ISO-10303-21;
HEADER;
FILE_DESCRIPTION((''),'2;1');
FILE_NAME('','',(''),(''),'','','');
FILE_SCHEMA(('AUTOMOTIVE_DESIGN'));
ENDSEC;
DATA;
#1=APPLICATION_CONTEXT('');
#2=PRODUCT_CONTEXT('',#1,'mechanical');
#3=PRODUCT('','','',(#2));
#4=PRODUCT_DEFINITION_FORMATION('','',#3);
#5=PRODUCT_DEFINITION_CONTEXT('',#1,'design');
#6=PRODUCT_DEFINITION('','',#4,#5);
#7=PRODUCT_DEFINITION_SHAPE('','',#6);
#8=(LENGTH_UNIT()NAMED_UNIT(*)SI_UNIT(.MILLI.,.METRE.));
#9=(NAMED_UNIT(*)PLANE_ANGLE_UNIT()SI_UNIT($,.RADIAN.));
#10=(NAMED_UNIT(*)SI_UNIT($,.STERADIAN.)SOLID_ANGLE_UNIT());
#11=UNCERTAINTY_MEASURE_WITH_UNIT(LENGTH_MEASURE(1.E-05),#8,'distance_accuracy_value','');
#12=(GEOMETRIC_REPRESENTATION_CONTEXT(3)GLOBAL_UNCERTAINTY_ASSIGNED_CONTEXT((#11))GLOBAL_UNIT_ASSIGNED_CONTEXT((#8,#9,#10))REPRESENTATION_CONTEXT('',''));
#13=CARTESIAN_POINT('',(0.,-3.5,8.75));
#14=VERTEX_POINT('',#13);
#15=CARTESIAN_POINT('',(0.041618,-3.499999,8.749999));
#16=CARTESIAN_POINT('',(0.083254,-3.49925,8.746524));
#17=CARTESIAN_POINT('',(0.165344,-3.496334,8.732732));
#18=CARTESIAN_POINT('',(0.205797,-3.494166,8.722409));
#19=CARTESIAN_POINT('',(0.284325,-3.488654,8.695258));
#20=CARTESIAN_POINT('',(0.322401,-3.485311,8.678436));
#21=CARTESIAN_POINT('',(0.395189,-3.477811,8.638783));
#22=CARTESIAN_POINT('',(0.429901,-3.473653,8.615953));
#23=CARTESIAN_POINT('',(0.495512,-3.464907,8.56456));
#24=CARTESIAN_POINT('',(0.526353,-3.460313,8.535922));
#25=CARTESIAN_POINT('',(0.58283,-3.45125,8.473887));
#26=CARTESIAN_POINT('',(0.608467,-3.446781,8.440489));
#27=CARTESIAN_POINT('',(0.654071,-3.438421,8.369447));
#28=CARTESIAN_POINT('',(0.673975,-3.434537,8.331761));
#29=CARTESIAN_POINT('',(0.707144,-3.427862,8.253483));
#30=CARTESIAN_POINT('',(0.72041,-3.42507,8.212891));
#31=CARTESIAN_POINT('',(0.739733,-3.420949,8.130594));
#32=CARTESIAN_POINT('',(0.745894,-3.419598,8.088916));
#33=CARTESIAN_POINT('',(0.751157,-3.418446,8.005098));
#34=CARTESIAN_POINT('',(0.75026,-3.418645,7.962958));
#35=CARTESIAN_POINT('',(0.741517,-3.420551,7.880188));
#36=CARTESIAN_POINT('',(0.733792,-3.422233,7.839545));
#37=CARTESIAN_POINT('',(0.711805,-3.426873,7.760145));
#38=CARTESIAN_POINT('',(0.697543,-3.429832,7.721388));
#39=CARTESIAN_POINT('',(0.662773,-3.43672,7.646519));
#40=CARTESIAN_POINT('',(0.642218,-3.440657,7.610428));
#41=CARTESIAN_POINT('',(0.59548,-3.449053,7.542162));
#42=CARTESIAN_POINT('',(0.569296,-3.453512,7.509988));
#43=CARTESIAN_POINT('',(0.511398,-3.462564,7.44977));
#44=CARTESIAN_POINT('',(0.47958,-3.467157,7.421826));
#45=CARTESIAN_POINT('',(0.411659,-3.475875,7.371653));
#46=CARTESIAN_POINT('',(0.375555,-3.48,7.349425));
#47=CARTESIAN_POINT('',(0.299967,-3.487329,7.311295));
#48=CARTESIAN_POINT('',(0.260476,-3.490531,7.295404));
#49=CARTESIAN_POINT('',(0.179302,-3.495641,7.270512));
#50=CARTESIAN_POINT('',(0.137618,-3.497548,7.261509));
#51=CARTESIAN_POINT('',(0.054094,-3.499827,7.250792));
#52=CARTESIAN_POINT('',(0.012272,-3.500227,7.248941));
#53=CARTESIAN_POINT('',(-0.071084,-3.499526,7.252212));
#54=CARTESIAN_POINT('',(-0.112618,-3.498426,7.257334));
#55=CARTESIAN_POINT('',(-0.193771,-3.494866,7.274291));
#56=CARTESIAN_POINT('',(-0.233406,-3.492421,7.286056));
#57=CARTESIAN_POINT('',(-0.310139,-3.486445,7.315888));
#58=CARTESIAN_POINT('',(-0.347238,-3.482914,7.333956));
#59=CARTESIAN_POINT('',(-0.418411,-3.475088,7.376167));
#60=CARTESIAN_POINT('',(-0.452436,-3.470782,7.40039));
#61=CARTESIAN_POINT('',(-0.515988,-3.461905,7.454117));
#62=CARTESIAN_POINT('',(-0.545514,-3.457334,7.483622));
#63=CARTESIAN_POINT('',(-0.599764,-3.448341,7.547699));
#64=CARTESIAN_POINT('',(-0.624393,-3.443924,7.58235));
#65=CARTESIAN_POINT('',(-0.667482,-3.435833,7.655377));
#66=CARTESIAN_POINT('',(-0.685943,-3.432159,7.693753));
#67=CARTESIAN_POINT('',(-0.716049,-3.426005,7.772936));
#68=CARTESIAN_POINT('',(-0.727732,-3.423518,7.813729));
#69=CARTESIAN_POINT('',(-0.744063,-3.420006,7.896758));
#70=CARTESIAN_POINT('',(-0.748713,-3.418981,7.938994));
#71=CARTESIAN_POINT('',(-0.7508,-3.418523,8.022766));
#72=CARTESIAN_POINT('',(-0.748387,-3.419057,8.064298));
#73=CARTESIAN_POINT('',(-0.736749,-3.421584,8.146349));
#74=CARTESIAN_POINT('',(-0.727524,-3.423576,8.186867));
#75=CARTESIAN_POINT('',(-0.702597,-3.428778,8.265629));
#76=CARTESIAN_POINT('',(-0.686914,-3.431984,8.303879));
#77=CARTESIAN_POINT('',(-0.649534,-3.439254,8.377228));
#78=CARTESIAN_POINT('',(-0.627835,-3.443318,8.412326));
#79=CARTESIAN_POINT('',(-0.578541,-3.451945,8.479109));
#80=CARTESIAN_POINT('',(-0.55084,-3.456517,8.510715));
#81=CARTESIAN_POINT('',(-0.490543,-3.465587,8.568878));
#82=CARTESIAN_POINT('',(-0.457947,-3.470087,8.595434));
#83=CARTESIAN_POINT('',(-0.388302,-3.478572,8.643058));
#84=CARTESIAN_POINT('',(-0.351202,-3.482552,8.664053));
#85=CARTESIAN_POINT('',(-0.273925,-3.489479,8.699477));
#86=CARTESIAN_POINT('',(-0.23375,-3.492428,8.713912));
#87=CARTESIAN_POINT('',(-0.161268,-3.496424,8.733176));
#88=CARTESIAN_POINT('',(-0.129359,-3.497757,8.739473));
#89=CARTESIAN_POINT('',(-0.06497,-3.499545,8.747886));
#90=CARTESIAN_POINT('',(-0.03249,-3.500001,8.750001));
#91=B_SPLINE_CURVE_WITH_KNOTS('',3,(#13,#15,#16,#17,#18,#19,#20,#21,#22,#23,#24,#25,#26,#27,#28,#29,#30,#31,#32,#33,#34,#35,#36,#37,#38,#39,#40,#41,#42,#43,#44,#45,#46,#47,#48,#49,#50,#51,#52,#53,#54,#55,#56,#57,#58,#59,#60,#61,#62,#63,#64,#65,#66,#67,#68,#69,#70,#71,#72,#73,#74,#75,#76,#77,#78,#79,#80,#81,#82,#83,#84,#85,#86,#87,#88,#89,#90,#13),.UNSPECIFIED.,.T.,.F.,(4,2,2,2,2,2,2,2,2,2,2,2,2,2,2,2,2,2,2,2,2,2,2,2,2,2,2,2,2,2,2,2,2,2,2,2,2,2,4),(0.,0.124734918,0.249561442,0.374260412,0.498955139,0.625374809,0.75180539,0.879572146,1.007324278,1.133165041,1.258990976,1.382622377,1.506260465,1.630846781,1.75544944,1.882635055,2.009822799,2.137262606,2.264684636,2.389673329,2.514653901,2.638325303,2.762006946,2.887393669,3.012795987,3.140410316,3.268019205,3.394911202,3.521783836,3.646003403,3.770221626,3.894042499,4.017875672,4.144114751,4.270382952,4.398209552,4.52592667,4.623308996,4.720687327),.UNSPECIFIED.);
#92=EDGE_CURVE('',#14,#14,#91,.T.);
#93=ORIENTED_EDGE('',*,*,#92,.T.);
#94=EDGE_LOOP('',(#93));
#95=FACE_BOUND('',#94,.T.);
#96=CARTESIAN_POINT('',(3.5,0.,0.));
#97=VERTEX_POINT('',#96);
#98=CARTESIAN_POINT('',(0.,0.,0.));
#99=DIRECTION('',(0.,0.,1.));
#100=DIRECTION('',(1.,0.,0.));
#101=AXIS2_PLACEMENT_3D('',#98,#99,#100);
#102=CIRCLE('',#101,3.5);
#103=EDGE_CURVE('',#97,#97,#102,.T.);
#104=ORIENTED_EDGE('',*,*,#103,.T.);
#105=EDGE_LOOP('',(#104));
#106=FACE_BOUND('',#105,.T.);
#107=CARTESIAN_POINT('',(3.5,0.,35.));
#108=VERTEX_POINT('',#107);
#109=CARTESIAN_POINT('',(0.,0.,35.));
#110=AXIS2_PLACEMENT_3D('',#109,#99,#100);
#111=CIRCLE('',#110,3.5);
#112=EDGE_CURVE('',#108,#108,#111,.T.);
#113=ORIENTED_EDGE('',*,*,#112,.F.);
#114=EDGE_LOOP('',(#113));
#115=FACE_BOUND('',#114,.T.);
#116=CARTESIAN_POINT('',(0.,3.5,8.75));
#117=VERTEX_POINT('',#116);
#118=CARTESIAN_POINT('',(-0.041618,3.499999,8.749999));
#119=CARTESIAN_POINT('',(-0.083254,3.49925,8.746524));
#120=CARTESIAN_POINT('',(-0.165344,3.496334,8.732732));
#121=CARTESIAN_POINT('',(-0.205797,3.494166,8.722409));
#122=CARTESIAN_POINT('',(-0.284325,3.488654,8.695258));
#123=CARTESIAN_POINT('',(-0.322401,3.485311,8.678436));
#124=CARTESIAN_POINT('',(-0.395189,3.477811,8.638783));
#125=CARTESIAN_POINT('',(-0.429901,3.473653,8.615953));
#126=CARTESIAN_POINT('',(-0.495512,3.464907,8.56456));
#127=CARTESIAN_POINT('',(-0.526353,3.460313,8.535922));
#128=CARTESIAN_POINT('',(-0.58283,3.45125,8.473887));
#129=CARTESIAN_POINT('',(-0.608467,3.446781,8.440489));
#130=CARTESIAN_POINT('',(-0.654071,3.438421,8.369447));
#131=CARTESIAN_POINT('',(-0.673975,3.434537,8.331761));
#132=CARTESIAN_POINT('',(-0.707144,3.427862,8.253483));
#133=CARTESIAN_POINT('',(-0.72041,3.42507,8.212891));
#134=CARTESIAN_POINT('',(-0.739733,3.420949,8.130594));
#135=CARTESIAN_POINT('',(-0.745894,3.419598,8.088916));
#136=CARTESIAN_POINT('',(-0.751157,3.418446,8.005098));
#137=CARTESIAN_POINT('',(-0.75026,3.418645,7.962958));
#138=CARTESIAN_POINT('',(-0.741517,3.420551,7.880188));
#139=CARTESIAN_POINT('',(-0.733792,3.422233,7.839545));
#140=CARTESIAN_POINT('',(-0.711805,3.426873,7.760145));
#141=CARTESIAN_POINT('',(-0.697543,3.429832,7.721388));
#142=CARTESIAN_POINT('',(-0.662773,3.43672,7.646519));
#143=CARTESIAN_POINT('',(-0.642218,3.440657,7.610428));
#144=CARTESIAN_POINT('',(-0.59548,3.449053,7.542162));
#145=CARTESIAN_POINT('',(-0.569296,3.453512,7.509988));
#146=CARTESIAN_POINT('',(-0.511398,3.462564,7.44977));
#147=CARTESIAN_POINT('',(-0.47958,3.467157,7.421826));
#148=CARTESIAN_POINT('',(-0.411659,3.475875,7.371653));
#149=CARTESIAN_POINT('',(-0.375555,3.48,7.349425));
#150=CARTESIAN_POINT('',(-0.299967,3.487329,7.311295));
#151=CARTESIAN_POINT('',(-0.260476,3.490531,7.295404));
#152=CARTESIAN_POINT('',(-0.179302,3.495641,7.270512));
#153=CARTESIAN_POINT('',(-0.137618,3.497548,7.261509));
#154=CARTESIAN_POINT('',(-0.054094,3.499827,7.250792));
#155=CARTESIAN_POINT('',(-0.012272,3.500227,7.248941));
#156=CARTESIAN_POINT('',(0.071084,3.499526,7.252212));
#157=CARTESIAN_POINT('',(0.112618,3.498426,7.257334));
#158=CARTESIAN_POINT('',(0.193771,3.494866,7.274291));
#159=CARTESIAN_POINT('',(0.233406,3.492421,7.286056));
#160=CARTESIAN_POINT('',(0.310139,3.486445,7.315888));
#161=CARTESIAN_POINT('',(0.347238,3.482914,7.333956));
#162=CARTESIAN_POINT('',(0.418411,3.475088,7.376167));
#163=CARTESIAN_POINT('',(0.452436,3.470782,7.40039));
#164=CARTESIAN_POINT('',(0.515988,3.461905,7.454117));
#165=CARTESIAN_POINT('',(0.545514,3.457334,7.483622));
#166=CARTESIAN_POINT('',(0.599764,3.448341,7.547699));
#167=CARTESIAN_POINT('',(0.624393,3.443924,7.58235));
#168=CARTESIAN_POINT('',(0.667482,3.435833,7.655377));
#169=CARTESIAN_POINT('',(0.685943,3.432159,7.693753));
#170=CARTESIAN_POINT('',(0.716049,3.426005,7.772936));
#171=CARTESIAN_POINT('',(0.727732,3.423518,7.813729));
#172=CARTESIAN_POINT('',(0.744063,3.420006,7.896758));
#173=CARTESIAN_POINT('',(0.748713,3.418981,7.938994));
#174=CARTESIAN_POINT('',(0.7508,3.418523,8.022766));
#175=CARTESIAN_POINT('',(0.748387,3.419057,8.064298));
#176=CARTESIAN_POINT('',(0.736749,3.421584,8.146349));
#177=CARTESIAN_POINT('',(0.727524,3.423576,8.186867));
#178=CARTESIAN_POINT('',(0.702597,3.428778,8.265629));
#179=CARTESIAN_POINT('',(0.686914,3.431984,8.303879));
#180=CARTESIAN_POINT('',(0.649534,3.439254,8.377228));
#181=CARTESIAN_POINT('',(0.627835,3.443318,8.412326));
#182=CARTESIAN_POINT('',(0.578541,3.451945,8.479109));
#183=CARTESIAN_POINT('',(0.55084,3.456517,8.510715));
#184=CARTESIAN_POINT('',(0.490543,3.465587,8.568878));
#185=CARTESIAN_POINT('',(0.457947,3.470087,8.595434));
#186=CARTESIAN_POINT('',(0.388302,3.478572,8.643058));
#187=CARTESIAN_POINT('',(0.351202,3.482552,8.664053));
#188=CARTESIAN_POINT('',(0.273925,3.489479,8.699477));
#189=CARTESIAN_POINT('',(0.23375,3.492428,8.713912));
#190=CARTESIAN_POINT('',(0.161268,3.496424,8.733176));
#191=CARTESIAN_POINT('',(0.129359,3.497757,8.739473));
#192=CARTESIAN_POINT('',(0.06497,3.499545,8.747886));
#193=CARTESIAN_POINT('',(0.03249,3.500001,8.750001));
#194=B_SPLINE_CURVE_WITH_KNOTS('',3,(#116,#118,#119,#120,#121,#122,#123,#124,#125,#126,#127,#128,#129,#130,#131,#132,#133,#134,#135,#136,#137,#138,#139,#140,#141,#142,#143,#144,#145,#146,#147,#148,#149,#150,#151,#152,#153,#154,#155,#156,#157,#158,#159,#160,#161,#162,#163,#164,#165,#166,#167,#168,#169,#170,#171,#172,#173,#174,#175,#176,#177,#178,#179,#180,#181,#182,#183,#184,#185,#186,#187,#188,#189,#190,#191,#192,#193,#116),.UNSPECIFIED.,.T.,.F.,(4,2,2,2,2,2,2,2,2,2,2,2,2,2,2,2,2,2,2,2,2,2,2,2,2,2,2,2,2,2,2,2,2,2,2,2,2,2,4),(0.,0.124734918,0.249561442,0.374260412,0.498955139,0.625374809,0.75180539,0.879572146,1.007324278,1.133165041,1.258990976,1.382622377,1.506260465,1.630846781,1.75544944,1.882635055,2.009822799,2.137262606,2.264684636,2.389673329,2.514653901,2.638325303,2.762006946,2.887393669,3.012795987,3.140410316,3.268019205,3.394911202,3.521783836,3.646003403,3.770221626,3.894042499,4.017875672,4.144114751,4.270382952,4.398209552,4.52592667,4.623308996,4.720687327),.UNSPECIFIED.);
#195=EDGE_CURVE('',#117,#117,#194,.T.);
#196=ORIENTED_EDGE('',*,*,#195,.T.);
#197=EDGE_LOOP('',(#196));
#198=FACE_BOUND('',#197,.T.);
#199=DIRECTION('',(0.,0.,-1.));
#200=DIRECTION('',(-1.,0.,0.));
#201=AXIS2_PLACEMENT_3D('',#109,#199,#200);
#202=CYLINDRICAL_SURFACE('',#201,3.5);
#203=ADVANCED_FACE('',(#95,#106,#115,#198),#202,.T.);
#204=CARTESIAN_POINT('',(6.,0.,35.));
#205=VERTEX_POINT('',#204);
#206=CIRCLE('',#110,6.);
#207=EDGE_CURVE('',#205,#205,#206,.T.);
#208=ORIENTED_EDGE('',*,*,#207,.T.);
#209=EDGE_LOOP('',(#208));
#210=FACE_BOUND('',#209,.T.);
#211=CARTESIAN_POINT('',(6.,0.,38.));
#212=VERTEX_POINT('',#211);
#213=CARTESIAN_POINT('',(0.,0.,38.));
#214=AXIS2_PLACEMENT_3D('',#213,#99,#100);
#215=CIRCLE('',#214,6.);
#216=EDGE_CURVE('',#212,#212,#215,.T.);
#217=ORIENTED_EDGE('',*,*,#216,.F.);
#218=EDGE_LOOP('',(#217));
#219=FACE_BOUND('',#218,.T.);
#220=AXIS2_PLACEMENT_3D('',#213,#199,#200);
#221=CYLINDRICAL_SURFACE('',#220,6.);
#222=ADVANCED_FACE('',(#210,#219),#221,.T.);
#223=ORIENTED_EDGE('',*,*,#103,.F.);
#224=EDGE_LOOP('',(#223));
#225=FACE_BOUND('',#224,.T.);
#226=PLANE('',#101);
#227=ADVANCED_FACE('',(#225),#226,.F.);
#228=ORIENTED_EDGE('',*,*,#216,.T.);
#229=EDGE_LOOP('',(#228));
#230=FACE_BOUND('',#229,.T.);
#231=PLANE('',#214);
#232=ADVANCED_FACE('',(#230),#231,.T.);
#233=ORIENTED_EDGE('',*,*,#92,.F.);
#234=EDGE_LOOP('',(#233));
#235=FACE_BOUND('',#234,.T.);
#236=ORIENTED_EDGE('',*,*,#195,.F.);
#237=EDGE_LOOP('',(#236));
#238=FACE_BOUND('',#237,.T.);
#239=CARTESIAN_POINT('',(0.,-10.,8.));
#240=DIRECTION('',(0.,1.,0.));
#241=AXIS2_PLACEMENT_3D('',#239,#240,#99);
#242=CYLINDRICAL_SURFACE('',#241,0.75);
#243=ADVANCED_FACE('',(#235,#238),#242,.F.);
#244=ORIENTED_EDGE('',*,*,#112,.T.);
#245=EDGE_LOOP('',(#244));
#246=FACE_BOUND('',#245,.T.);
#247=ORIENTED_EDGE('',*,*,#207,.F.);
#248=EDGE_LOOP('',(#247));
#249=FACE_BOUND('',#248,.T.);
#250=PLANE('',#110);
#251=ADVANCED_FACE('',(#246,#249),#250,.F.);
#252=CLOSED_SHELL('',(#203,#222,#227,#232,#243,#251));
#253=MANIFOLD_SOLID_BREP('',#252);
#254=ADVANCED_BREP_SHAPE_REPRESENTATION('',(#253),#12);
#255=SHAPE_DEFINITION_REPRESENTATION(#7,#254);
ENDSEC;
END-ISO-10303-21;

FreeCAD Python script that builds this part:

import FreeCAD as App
import Part
import Sketcher
from FreeCAD import Vector
Q = App.Units.Quantity

doc = App.newDocument("Part")
params = doc.addObject("Spreadsheet::Sheet", "Params")
for row, (alias, value) in enumerate([
    ("sketch1_diameter", "7 mm"),
    ("pad1_length", "35 mm"),
    ("sketch2_diameter", "1.5 mm"),
    ("pocket1_length", "20 mm"),
    ("sketch3_diameter", "12 mm"),
    ("pad2_length", "3 mm"),
], start=1):
    params.set(f"A{row}", alias)
    params.set(f"B{row}", "=" + value)
    params.setAlias(f"B{row}", alias)

body = doc.addObject("PartDesign::Body", "Body")

sketch1 = doc.addObject("Sketcher::SketchObject", "Sketch")
body.addObject(sketch1)
sketch1.AttachmentSupport = (doc.XY_Plane, [""])
sketch1.MapMode = "FlatFace"
sketch1.addGeometry(Part.Circle(Vector(0, 0, 0), Vector(0, 0, 1), 3.5), False)
sketch1.addConstraint([
    Sketcher.Constraint("Coincident", 0, 3, -1, 1),
    Sketcher.Constraint("Diameter", 0, Q("7 mm")),
])
sketch1.setExpression("Constraints[1]", "Params.sketch1_diameter")
pad1 = doc.addObject("PartDesign::Pad", "Pad")
body.addObject(pad1)
pad1.Profile = sketch1
pad1.setExpression("Length", "Params.pad1_length")

sketch2 = doc.addObject("Sketcher::SketchObject", "Sketch001")
body.addObject(sketch2)
sketch2.AttachmentSupport = (doc.XZ_Plane, [""])
sketch2.MapMode = "FlatFace"
sketch2.AttachmentOffset = App.Placement(Vector(0, 0, -10), App.Rotation())
sketch2.addGeometry(Part.Circle(Vector(0, 8, 0), Vector(0, 0, 1), 0.8), False)
sketch2.addConstraint([
    Sketcher.Constraint("PointOnObject", 0, 3, -2),
    Sketcher.Constraint("Diameter", 0, Q("1.5 mm")),
    Sketcher.Constraint("DistanceY", -1, 1, 0, 3, Q("8 mm")),
])
sketch2.setExpression("Constraints[1]", "Params.sketch2_diameter")
pocket1 = doc.addObject("PartDesign::Pocket", "Pocket")
body.addObject(pocket1)
pocket1.Profile = sketch2
pocket1.setExpression("Length", "Params.pocket1_length")
pocket1.Reversed = True

sketch3 = doc.addObject("Sketcher::SketchObject", "Sketch002")
body.addObject(sketch3)
sketch3.AttachmentSupport = (doc.XY_Plane, [""])
sketch3.MapMode = "FlatFace"
sketch3.AttachmentOffset = App.Placement(Vector(0, 0, 35), App.Rotation())
sketch3.addGeometry(Part.Circle(Vector(0, 0, 0), Vector(0, 0, 1), 6), False)
sketch3.addConstraint([
    Sketcher.Constraint("Coincident", 0, 3, -1, 1),
    Sketcher.Constraint("Diameter", 0, Q("12 mm")),
])
sketch3.setExpression("Constraints[1]", "Params.sketch3_diameter")
pad2 = doc.addObject("PartDesign::Pad", "Pad001")
body.addObject(pad2)
pad2.Profile = sketch3
pad2.setExpression("Length", "Params.pad2_length")

doc.recompute()
